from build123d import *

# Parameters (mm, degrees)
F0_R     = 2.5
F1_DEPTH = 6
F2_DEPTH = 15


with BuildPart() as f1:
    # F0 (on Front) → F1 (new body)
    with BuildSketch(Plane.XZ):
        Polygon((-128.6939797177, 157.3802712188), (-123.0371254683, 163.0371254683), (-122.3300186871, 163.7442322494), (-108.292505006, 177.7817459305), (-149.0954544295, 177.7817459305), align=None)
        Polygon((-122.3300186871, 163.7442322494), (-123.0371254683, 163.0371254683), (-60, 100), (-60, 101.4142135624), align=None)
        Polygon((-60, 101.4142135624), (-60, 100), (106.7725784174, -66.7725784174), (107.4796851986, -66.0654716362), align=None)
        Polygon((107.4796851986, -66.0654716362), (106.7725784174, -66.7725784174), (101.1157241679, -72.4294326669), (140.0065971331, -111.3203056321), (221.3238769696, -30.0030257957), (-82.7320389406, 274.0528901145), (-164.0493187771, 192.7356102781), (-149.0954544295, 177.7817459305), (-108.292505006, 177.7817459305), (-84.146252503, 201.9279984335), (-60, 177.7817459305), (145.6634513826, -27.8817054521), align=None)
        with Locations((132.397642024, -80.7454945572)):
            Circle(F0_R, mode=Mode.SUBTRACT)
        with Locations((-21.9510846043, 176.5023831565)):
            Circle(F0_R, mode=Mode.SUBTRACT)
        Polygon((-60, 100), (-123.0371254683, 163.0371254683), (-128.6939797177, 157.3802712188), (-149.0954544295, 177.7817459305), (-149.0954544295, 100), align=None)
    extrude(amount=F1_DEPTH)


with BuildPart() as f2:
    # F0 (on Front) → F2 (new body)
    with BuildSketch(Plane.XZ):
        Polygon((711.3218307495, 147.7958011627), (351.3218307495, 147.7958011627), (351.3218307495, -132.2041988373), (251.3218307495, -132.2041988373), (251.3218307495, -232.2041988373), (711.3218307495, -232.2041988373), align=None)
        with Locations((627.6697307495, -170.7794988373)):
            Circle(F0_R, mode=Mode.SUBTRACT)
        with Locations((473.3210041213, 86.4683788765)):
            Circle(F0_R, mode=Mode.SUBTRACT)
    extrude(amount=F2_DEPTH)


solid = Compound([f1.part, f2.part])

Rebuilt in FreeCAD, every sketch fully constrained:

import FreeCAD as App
import Part
import Sketcher

V = App.Vector
Q = App.Units.Quantity

doc = App.newDocument("Part")
params = doc.addObject("Spreadsheet::Sheet", "Params")
for row, (alias, value) in enumerate([
    ("sketch1_diameter", "5 mm"),
    ("sketch1_length", "8 mm"),
    ("sketch1_length2", "55 mm"),
    ("sketch1_length3", "115 mm"),
    ("sketch1_length4", "430 mm"),
    ("pad1_length", "6 mm"),
    ("sketch2_diameter", "5 mm"),
    ("sketch2_width", "360 mm"),
    ("sketch2_width2", "100 mm"),
    ("sketch2_height", "280 mm"),
    ("pad2_length", "15 mm"),
], start=1):
    params.set(f"A{row}", alias)
    params.set(f"B{row}", "=" + value)
    params.setAlias(f"B{row}", alias)

body = doc.addObject("PartDesign::Body", "Body")

# Sketch on XZ plane
sketch1 = body.newObject("Sketcher::SketchObject", "Sketch")
sketch1.AttachmentSupport = (doc.getObject("XZ_Plane"), [""])
sketch1.MapMode = "FlatFace"
sketch1.addGeometry([
    Part.LineSegment(V(-60, 100, 0), V(106.772578, -66.772578, 0)),  # 0
    Part.LineSegment(V(106.772578, -66.772578, 0), V(101.115724, -72.429433, 0)),  # 1
    Part.LineSegment(V(101.115724, -72.429433, 0), V(140.006597, -111.320306, 0)),  # 2
    Part.LineSegment(V(140.006597, -111.320306, 0), V(221.323877, -30.003026, 0)),  # 3
    Part.LineSegment(V(221.323877, -30.003026, 0), V(-82.732039, 274.05289, 0)),  # 4
    Part.LineSegment(V(-82.732039, 274.05289, 0), V(-164.049319, 192.73561, 0)),  # 5
    Part.LineSegment(V(-164.049319, 192.73561, 0), V(-149.095454, 177.781746, 0)),  # 6
    Part.LineSegment(V(-149.095454, 177.781746, 0), V(-149.095454, 100, 0)),  # 7
    Part.LineSegment(V(-149.095454, 100, 0), V(-60, 100, 0)),  # 8
    Part.Circle(V(132.397642, -80.745495, 0), V(0, 0, 1), 2.5),  # 9
    Part.Circle(V(-21.951085, 176.502383, 0), V(0, 0, 1), 2.5),  # 10
    Part.LineSegment(V(107.479685, -66.065472, 0), V(-122.330019, 163.744232, 0)),  # 11
    Part.LineSegment(V(-122.330019, 163.744232, 0), V(-84.146253, 201.927998, 0)),  # 12
    Part.LineSegment(V(-84.146253, 201.927998, 0), V(145.663451, -27.881705, 0)),  # 13
    Part.LineSegment(V(145.663451, -27.881705, 0), V(107.479685, -66.065472, 0)),  # 14
], False)
sketch1.addConstraint([
    Sketcher.Constraint("Coincident", 0, 2, 1, 1),
    Sketcher.Constraint("Coincident", 1, 2, 2, 1),
    Sketcher.Constraint("Coincident", 2, 2, 3, 1),
    Sketcher.Constraint("Coincident", 3, 2, 4, 1),
    Sketcher.Constraint("Coincident", 4, 2, 5, 1),
    Sketcher.Constraint("Coincident", 5, 2, 6, 1),
    Sketcher.Constraint("Coincident", 6, 2, 7, 1),
    Sketcher.Constraint("Coincident", 7, 2, 8, 1),
    Sketcher.Constraint("Coincident", 8, 2, 0, 1),
    Sketcher.Constraint("Coincident", 11, 2, 12, 1),
    Sketcher.Constraint("Coincident", 12, 2, 13, 1),
    Sketcher.Constraint("Coincident", 13, 2, 14, 1),
    Sketcher.Constraint("Coincident", 14, 2, 11, 1),
    Sketcher.Constraint("Vertical", 7),
    Sketcher.Constraint("Horizontal", 8),
    Sketcher.Constraint("Equal", 9, 10),
    Sketcher.Constraint("Perpendicular", 0, 1),
    Sketcher.Constraint("Perpendicular", 1, 2),
    Sketcher.Constraint("Perpendicular", 2, 3),
    Sketcher.Constraint("Perpendicular", 3, 4),
    Sketcher.Constraint("Perpendicular", 4, 5),
    Sketcher.Constraint("Perpendicular", 5, 6),
    Sketcher.Constraint("Parallel", 6, 11),
    Sketcher.Constraint("Perpendicular", 11, 12),
    Sketcher.Constraint("Perpendicular", 12, 13),
    Sketcher.Constraint("Perpendicular", 13, 14),
    Sketcher.Constraint("Equal", 3, 5),
    Sketcher.Constraint("Diameter", 9, 5.0),
    Sketcher.Constraint("Angle", 0, Q("-45 deg")),
    Sketcher.Constraint("Distance", 1, 8.0),
    Sketcher.Constraint("Distance", 2, 55.0),
    Sketcher.Constraint("Distance", 3, 115.0),
    Sketcher.Constraint("Distance", 4, 430.0),
    Sketcher.Constraint("Distance", 11, 325.0),
    Sketcher.Constraint("Distance", 12, 54.0),
    Sketcher.Constraint("DistanceY", -1, 1, 7, 2, 100.0),
    Sketcher.Constraint("DistanceX", 8, 2, -1, 1, 60.0),
    Sketcher.Constraint("DistanceY", -1, 1, 12, 2, 201.927998),
    Sketcher.Constraint("DistanceX", 5, 2, 11, 2, 41.7193),
    Sketcher.Constraint("DistanceX", 6, 2, 12, 2, 64.949202),
    Sketcher.Constraint("DistanceY", 2, 2, 13, 2, 83.4386),
    Sketcher.Constraint("DistanceY", 0, 2, 10, 3, 243.274962),
    Sketcher.Constraint("DistanceY", 9, 3, 1, 2, 8.316062),
    Sketcher.Constraint("DistanceX", 10, 3, 1, 2, 123.066809),
    Sketcher.Constraint("DistanceX", 4, 2, 9, 3, 215.129681),
])
sketch1.setExpression("Constraints[27]", "Params.sketch1_diameter")
sketch1.setExpression("Constraints[29]", "Params.sketch1_length")
sketch1.setExpression("Constraints[30]", "Params.sketch1_length2")
sketch1.setExpression("Constraints[31]", "Params.sketch1_length3")
sketch1.setExpression("Constraints[32]", "Params.sketch1_length4")
pad1 = body.newObject("PartDesign::Pad", "Pad")
pad1.Profile = sketch1
pad1.setExpression("Length", "Params.pad1_length")
body2 = doc.addObject("PartDesign::Body", "Body001")

# Sketch on XZ plane
sketch2 = body2.newObject("Sketcher::SketchObject", "Sketch001")
sketch2.AttachmentSupport = (doc.getObject("XZ_Plane001"), [""])
sketch2.MapMode = "FlatFace"
sketch2.addGeometry([
    Part.LineSegment(V(711.321831, 147.795801, 0), V(351.321831, 147.795801, 0)),  # 0
    Part.LineSegment(V(351.321831, 147.795801, 0), V(351.321831, -132.204199, 0)),  # 1
    Part.LineSegment(V(351.321831, -132.204199, 0), V(251.321831, -132.204199, 0)),  # 2
    Part.LineSegment(V(251.321831, -132.204199, 0), V(251.321831, -232.204199, 0)),  # 3
    Part.LineSegment(V(251.321831, -232.204199, 0), V(711.321831, -232.204199, 0)),  # 4
    Part.LineSegment(V(711.321831, -232.204199, 0), V(711.321831, 147.795801, 0)),  # 5
    Part.Circle(V(627.669731, -170.779499, 0), V(0, 0, 1), 2.5),  # 6
    Part.Circle(V(473.321004, 86.468379, 0), V(0, 0, 1), 2.5),  # 7
], False)
sketch2.addConstraint([
    Sketcher.Constraint("Coincident", 0, 2, 1, 1),
    Sketcher.Constraint("Coincident", 1, 2, 2, 1),
    Sketcher.Constraint("Coincident", 2, 2, 3, 1),
    Sketcher.Constraint("Coincident", 3, 2, 4, 1),
    Sketcher.Constraint("Coincident", 4, 2, 5, 1),
    Sketcher.Constraint("Coincident", 5, 2, 0, 1),
    Sketcher.Constraint("Horizontal", 0),
    Sketcher.Constraint("Vertical", 1),
    Sketcher.Constraint("Horizontal", 2),
    Sketcher.Constraint("Vertical", 3),
    Sketcher.Constraint("Horizontal", 4),
    Sketcher.Constraint("Vertical", 5),
    Sketcher.Constraint("Equal", 6, 7),
    Sketcher.Constraint("Equal", 2, 3),
    Sketcher.Constraint("Diameter", 6, 5.0),
    Sketcher.Constraint("DistanceX", 0, 2, 0, 1, 360.0),
    Sketcher.Constraint("DistanceX", 2, 2, 2, 1, 100.0),
    Sketcher.Constraint("DistanceY", 1, 2, 1, 1, 280.0),
    Sketcher.Constraint("DistanceY", 6, 3, -1, 1, 170.779499),
    Sketcher.Constraint("DistanceY", -1, 1, 0, 2, 147.795801),
    Sketcher.Constraint("DistanceX", 0, 2, 6, 3, 276.3479),
    Sketcher.Constraint("DistanceX", -1, 1, 6, 3, 627.669731),
    Sketcher.Constraint("DistanceY", -1, 1, 7, 3, 86.468379),
    Sketcher.Constraint("DistanceX", -1, 1, 7, 3, 473.321004),
])
sketch2.setExpression("Constraints[14]", "Params.sketch2_diameter")
sketch2.setExpression("Constraints[15]", "Params.sketch2_width")
sketch2.setExpression("Constraints[16]", "Params.sketch2_width2")
sketch2.setExpression("Constraints[17]", "Params.sketch2_height")
pad2 = body2.newObject("PartDesign::Pad", "Pad001")
pad2.Profile = sketch2
pad2.setExpression("Length", "Params.pad2_length")

doc.recompute()
